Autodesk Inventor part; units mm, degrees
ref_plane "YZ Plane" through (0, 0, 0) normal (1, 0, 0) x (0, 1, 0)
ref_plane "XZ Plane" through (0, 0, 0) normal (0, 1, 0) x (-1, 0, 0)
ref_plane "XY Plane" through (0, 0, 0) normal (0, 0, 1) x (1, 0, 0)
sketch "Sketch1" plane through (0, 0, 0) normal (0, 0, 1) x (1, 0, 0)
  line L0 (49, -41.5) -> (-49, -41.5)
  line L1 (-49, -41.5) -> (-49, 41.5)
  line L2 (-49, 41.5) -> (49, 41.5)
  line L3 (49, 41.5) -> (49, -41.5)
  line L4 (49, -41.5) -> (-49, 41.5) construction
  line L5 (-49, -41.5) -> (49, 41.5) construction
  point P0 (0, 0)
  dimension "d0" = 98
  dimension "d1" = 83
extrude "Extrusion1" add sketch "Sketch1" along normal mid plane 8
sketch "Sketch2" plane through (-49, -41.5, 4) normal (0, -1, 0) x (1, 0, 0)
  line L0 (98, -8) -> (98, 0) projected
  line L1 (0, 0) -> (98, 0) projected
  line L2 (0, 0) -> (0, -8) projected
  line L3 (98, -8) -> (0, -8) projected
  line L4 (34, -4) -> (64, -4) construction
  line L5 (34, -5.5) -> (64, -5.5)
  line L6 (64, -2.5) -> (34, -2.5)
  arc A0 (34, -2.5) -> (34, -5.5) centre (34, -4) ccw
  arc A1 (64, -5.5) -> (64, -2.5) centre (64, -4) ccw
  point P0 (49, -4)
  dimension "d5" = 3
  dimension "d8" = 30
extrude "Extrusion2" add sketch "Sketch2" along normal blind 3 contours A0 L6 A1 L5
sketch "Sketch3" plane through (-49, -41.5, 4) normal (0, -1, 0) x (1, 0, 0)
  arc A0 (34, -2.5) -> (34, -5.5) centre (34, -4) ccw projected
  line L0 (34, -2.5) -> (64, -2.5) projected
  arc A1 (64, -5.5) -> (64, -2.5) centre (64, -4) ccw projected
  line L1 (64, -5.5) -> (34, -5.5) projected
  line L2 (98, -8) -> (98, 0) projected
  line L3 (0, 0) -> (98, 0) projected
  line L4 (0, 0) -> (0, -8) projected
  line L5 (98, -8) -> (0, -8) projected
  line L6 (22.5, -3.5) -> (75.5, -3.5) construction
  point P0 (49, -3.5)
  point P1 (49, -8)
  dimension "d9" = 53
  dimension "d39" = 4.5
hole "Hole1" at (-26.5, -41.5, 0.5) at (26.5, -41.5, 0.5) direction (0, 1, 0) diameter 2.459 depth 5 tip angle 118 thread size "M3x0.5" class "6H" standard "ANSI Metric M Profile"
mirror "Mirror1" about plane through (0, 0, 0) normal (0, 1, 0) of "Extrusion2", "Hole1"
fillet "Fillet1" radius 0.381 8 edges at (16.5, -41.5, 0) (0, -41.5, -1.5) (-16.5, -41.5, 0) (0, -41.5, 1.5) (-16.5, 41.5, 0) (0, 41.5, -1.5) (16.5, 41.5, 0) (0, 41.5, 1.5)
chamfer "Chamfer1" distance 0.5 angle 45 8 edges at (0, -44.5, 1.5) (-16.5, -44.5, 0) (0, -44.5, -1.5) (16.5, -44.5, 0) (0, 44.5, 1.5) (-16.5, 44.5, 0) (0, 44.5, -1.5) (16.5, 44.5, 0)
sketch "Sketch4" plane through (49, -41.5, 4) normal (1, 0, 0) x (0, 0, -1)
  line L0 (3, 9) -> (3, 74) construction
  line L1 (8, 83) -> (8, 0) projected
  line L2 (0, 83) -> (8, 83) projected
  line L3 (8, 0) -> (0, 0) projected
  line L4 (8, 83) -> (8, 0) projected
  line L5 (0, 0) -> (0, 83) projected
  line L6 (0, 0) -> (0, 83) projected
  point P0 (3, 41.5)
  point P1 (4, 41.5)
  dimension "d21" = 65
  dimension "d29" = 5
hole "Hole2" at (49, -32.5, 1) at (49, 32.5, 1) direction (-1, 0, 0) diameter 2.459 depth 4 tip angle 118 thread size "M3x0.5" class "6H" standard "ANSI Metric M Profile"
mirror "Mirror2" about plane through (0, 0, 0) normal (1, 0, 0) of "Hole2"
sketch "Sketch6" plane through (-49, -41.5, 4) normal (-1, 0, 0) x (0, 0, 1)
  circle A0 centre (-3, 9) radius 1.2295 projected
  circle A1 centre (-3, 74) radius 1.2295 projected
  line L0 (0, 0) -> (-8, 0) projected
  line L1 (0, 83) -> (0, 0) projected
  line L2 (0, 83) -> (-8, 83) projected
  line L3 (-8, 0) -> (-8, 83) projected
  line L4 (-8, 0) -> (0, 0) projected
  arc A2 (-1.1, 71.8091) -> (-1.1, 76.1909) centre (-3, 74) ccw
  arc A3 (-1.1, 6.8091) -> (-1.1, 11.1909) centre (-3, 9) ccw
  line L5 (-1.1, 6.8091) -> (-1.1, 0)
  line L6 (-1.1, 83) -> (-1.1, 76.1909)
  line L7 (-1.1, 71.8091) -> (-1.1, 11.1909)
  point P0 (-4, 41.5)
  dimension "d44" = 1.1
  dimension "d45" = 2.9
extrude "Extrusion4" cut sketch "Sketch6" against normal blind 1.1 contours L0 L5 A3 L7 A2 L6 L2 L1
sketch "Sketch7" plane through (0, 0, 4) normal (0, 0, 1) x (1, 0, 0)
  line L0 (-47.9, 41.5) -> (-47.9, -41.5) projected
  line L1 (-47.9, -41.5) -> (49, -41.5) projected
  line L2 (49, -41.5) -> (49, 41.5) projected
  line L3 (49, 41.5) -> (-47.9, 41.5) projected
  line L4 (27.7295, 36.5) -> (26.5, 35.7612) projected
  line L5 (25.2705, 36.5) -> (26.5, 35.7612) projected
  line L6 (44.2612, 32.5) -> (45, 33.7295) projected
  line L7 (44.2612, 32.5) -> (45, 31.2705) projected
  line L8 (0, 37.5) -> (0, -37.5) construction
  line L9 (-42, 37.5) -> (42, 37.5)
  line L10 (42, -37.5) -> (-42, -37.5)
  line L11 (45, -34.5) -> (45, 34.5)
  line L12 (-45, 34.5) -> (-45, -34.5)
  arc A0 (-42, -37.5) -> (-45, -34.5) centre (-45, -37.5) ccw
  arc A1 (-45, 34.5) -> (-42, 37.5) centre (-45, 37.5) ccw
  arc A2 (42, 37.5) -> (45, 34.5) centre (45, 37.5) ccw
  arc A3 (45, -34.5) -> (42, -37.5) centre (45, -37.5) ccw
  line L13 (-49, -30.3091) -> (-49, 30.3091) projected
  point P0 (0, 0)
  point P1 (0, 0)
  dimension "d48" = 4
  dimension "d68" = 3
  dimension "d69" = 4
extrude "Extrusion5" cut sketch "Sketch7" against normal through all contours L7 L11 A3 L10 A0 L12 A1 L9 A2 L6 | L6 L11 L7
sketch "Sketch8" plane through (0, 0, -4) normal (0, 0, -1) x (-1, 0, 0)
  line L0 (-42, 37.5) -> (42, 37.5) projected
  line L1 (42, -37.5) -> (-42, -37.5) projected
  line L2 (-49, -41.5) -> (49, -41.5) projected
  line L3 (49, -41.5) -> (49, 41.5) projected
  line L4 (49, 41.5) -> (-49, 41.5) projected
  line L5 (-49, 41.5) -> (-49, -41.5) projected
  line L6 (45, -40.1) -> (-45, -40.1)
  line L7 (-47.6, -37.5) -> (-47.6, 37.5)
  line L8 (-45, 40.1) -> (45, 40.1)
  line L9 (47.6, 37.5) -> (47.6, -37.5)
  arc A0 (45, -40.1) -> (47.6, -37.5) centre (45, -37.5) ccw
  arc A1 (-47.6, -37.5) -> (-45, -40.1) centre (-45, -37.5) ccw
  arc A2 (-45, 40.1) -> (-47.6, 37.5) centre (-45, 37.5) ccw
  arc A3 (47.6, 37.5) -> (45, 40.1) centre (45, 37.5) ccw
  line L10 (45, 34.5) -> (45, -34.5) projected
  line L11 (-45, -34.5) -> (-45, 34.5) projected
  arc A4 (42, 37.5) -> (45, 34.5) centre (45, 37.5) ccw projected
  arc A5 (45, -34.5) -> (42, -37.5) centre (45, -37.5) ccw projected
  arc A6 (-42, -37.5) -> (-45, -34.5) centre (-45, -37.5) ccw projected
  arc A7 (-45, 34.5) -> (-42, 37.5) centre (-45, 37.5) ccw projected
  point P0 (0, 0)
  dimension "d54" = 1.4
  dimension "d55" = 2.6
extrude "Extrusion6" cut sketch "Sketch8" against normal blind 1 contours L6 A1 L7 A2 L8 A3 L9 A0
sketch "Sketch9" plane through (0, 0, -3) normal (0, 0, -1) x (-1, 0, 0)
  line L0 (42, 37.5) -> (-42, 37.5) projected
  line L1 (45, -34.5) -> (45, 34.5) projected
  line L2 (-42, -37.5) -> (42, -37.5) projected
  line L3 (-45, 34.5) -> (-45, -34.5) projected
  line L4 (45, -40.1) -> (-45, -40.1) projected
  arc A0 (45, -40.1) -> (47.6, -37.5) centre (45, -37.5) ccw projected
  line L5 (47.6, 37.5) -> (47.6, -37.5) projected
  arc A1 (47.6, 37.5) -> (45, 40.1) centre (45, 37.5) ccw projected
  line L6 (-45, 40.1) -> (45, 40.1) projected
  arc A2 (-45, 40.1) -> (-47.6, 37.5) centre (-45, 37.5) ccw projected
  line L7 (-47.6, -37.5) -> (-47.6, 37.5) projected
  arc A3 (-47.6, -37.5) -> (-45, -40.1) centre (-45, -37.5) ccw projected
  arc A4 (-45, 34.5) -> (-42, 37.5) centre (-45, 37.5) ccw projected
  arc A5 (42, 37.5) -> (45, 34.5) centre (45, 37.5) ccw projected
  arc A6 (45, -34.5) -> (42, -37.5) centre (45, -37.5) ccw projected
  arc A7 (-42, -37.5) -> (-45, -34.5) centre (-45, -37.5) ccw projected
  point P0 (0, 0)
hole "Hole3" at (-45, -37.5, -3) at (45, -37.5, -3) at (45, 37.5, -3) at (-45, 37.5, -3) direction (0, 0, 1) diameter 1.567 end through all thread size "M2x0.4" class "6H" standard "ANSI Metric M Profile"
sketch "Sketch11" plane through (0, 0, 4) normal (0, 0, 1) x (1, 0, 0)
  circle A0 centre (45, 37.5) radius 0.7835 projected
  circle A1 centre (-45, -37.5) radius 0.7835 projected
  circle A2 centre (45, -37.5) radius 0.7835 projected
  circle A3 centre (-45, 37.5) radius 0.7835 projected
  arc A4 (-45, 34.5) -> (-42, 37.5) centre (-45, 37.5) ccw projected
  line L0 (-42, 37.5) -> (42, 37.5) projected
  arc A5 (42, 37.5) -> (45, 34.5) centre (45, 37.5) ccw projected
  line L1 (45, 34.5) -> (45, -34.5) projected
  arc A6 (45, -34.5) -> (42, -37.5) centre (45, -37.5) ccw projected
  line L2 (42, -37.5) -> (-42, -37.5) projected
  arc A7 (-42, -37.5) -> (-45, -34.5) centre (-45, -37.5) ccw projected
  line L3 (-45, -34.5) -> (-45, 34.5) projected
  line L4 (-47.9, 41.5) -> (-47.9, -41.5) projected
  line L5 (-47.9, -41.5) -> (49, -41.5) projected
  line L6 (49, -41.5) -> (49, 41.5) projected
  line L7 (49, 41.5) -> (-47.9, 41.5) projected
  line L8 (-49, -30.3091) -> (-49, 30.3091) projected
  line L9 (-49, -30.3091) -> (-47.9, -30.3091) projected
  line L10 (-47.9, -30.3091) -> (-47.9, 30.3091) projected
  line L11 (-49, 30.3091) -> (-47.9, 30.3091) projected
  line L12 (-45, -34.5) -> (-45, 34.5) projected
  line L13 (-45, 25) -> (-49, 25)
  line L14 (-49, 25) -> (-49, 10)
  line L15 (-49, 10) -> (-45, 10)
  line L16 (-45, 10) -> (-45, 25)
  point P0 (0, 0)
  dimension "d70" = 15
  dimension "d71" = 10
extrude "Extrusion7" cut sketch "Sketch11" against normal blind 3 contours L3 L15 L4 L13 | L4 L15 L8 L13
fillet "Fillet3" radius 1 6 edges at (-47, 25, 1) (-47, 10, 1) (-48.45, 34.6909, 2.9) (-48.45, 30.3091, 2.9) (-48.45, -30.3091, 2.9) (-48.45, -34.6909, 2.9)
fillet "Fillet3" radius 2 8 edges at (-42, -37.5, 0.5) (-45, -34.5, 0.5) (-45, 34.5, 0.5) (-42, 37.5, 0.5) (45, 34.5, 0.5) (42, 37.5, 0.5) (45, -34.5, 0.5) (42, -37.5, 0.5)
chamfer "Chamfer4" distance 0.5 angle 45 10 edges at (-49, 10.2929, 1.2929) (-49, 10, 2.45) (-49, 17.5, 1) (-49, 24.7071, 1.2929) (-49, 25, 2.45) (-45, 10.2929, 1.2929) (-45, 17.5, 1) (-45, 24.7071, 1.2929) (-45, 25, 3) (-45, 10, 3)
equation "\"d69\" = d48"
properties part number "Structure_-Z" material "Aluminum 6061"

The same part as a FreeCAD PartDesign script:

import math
import FreeCAD as App
import Part
import Sketcher
Q = App.Units.Quantity


def edges_at(feature, points):
    """Names of the edges that pass closest to the given points."""
    edges = feature.Shape.Edges
    near = lambda p: min(range(len(edges)), key=lambda i: edges[i].distToShape(Part.Vertex(*p))[0])
    return sorted({f"Edge{near(p) + 1}" for p in points})


def add_polygon(sketch, points):
    """Adds a closed chain of lines whose ends are joined by coincident constraints."""
    first, n = sketch.GeometryCount, len(points)
    for a, b in zip(points, points[1:] + points[:1]):
        sketch.addGeometry(Part.LineSegment(App.Vector(*a, 0), App.Vector(*b, 0)), False)
    for i in range(n):
        sketch.addConstraint(Sketcher.Constraint("Coincident", first + i, 2, first + (i + 1) % n, 1))

doc = App.newDocument("Part")
params = doc.addObject("Spreadsheet::Sheet", "Params")
for row, (alias, value) in enumerate([
    ("sketch1_width", "98 mm"),
    ("sketch1_height", "83 mm"),
    ("pad1_length", "8 mm"),
    ("sketch2_radius", "1.5 mm"),
    ("sketch2_width", "30 mm"),
    ("pad2_length", "3 mm"),
    ("hole_diameter", "2.459 mm"),
    ("hole_depth", "5 mm"),
    ("fillet_radius", "0.381 mm"),
    ("chamfer_size", "0.5 mm"),
    ("hole2_diameter", "2.459 mm"),
    ("hole2_depth", "4 mm"),
    ("sketch5_radius", "2.9 mm"),
    ("sketch5_height", "1.1 mm"),
    ("sketch5_width", "83 mm"),
    ("pocket1_length", "1.1 mm"),
    ("sketch6_radius", "3 mm"),
    ("sketch6_width", "84 mm"),
    ("sketch6_height", "69 mm"),
    ("sketch7_radius", "2.6 mm"),
    ("sketch7_radius2", "3 mm"),
    ("sketch7_width", "90 mm"),
    ("sketch7_height", "75 mm"),
    ("pocket3_length", "1 mm"),
    ("hole3_diameter", "1.567 mm"),
    ("sketch9_height", "15 mm"),
    ("sketch9_width", "4 mm"),
    ("pocket4_length", "3 mm"),
    ("fillet2_radius", "1 mm"),
    ("fillet3_radius", "2 mm"),
    ("chamfer2_size", "0.5 mm"),
], start=1):
    params.set(f"A{row}", alias)
    params.set(f"B{row}", "=" + value)
    params.setAlias(f"B{row}", alias)

body = doc.addObject("PartDesign::Body", "Body")

# Sketch on XY plane
sketch1 = body.newObject("Sketcher::SketchObject", "Sketch")
sketch1.AttachmentSupport = (doc.getObject("XY_Plane"), [""])
sketch1.MapMode = "FlatFace"
add_polygon(sketch1, [(-49, -42), (49, -42), (49, 42), (-49, 42)])  # lines 0-3
sketch1.addConstraint([
    Sketcher.Constraint("Horizontal", 0),
    Sketcher.Constraint("Vertical", 1),
    Sketcher.Constraint("Horizontal", 2),
    Sketcher.Constraint("Vertical", 3),
    Sketcher.Constraint("Symmetric", 0, 2, 2, 2, -1, 1),
    Sketcher.Constraint("DistanceX", 0, 1, 0, 2, Q("98 mm")),
    Sketcher.Constraint("DistanceY", 1, 1, 1, 2, Q("83 mm")),
])
sketch1.setExpression("Constraints[9]", "Params.sketch1_width")
sketch1.setExpression("Constraints[10]", "Params.sketch1_height")
pad1 = body.newObject("PartDesign::Pad", "Pad")
pad1.Profile = sketch1
pad1.setExpression("Length", "Params.pad1_length")
pad1.Midplane = True

# Sketch on XZ plane
sketch2 = body.newObject("Sketcher::SketchObject", "Sketch001")
sketch2.AttachmentSupport = (doc.getObject("XZ_Plane"), [""])
sketch2.MapMode = "FlatFace"
sketch2.AttachmentOffset = App.Placement(App.Vector(0, 0, 41.5), App.Rotation())
sketch2.addGeometry([
    Part.ArcOfCircle(Part.Circle(App.Vector(-15, 0, 0), App.Vector(0, 0, 1), 1.5), math.radians(90), math.radians(270)),
    Part.LineSegment(App.Vector(-15, -1.5, 0), App.Vector(15, -1.5, 0)),
    Part.ArcOfCircle(Part.Circle(App.Vector(15, 0, 0), App.Vector(0, 0, 1), 1.5), math.radians(-90), math.radians(90)),
    Part.LineSegment(App.Vector(15, 1.5, 0), App.Vector(-15, 1.5, 0)),
], False)
sketch2.addConstraint([
    Sketcher.Constraint("Tangent", 0, 2, 1, 1),
    Sketcher.Constraint("Tangent", 1, 2, 2, 1),
    Sketcher.Constraint("Tangent", 2, 2, 3, 1),
    Sketcher.Constraint("Tangent", 3, 2, 0, 1),
    Sketcher.Constraint("Horizontal", 1),
    Sketcher.Constraint("Horizontal", 3),
    Sketcher.Constraint("Symmetric", 0, 3, 2, 3, -1, 1),
    Sketcher.Constraint("Radius", 0, Q("1.5 mm")),
    Sketcher.Constraint("DistanceX", 1, 1, 1, 2, Q("30 mm")),
])
sketch2.setExpression("Constraints[7]", "Params.sketch2_radius")
sketch2.setExpression("Constraints[8]", "Params.sketch2_width")
pad2 = body.newObject("PartDesign::Pad", "Pad001")
pad2.Profile = sketch2
pad2.setExpression("Length", "Params.pad2_length")

# Sketch on XZ plane
sketch3 = body.newObject("Sketcher::SketchObject", "Sketch002")
sketch3.AttachmentSupport = (doc.getObject("XZ_Plane"), [""])
sketch3.MapMode = "FlatFace"
sketch3.AttachmentOffset = App.Placement(App.Vector(0, 0, 41.5), App.Rotation())
sketch3.addGeometry([
    Part.Circle(App.Vector(-26.5, 0.5, 0), App.Vector(0, 0, 1), 1.2),
    Part.Circle(App.Vector(26.5, 0.5, 0), App.Vector(0, 0, 1), 1.2),
], False)
sketch3.addConstraint([
    Sketcher.Constraint("Equal", 0, 1),
    Sketcher.Constraint("Symmetric", 0, 3, 1, 3, -2),
    Sketcher.Constraint("Diameter", 0, Q("2.459 mm")),
    Sketcher.Constraint("DistanceX", 0, 3, 1, 3, Q("53 mm")),
    Sketcher.Constraint("DistanceY", -1, 1, 0, 3, Q("0.5 mm")),
])
doc.recompute()
hole = body.newObject("PartDesign::Hole", "Hole")
hole.Profile = sketch3
hole.ThreadType = "None"
hole.setExpression("Diameter", "Params.hole_diameter")
hole.DepthType = "Dimension"
hole.setExpression("Depth", "Params.hole_depth")
hole.DrillPoint = "Angled"
hole.DrillPointAngle = 118
doc.recompute()

mirrored = body.newObject("PartDesign::Mirrored", "Mirrored")
mirrored.Originals = [pad2, hole]
mirrored.MirrorPlane = (doc.getObject("XZ_Plane"), [""])
body.Tip = mirrored
doc.recompute()

fillet = body.newObject("PartDesign::Fillet", "Fillet")
fillet.Base = (mirrored, edges_at(mirrored, [
    (16.5, -41.5, 0),
    (0, -41.5, -1.5),
    (-16.5, -41.5, 0),
    (0, -41.5, 1.5),
    (-16.5, 41.5, 0),
    (0, 41.5, -1.5),
    (16.5, 41.5, 0),
    (0, 41.5, 1.5),
]))
fillet.setExpression("Radius", "Params.fillet_radius")
doc.recompute()

chamfer = body.newObject("PartDesign::Chamfer", "Chamfer")
chamfer.Base = (fillet, edges_at(fillet, [
    (0, -44.5, 1.5),
    (-16.5, -44.5, 0),
    (0, -44.5, -1.5),
    (16.5, -44.5, 0),
    (0, 44.5, 1.5),
    (-16.5, 44.5, 0),
    (0, 44.5, -1.5),
    (16.5, 44.5, 0),
]))
chamfer.setExpression("Size", "Params.chamfer_size")

# Sketch on YZ plane
sketch4 = body.newObject("Sketcher::SketchObject", "Sketch003")
sketch4.AttachmentSupport = (doc.getObject("YZ_Plane"), [""])
sketch4.MapMode = "FlatFace"
sketch4.AttachmentOffset = App.Placement(App.Vector(0, 0, 49), App.Rotation())
sketch4.addGeometry([
    Part.Circle(App.Vector(-32.5, 1, 0), App.Vector(0, 0, 1), 1.2),
    Part.Circle(App.Vector(32.5, 1, 0), App.Vector(0, 0, 1), 1.2),
], False)
sketch4.addConstraint([
    Sketcher.Constraint("Equal", 0, 1),
    Sketcher.Constraint("Symmetric", 0, 3, 1, 3, -2),
    Sketcher.Constraint("Diameter", 0, Q("2.459 mm")),
    Sketcher.Constraint("DistanceY", -1, 1, 0, 3, Q("1 mm")),
    Sketcher.Constraint("DistanceX", 0, 3, 1, 3, Q("65 mm")),
])
doc.recompute()
hole2 = body.newObject("PartDesign::Hole", "Hole001")
hole2.Profile = sketch4
hole2.ThreadType = "None"
hole2.setExpression("Diameter", "Params.hole2_diameter")
hole2.DepthType = "Dimension"
hole2.setExpression("Depth", "Params.hole2_depth")
hole2.DrillPoint = "Angled"
hole2.DrillPointAngle = 118
doc.recompute()

mirrored2 = body.newObject("PartDesign::Mirrored", "Mirrored001")
mirrored2.Originals = [hole2]
mirrored2.MirrorPlane = (doc.getObject("YZ_Plane"), [""])
body.Tip = mirrored2

# Sketch on YZ plane
sketch5 = body.newObject("Sketcher::SketchObject", "Sketch004")
sketch5.AttachmentSupport = (doc.getObject("YZ_Plane"), [""])
sketch5.MapMode = "FlatFace"
sketch5.AttachmentOffset = App.Placement(App.Vector(0, 0, -49), App.Rotation())
sketch5.addGeometry([
    Part.LineSegment(App.Vector(-41.5, 2.9, 0), App.Vector(-41.5, 4, 0)),  # 0
    Part.LineSegment(App.Vector(-41.5, 4, 0), App.Vector(41.5, 4, 0)),  # 1
    Part.LineSegment(App.Vector(41.5, 4, 0), App.Vector(41.5, 2.9, 0)),  # 2
    Part.LineSegment(App.Vector(41.5, 2.9, 0), App.Vector(34.7, 2.9, 0)),  # 3
    Part.ArcOfCircle(Part.Circle(App.Vector(32.5, 1, 0), App.Vector(0, 0, 1), 2.9), math.radians(41), math.radians(139)),  # 4
    Part.LineSegment(App.Vector(30.3, 2.9, 0), App.Vector(-30.3, 2.9, 0)),  # 5
    Part.ArcOfCircle(Part.Circle(App.Vector(-32.5, 1, 0), App.Vector(0, 0, 1), 2.9), math.radians(41), math.radians(139)),  # 6
    Part.LineSegment(App.Vector(-34.7, 2.9, 0), App.Vector(-41.5, 2.9, 0)),  # 7
], False)
sketch5.addConstraint([
    Sketcher.Constraint("Coincident", 0, 2, 1, 1),
    Sketcher.Constraint("Coincident", 1, 2, 2, 1),
    Sketcher.Constraint("Coincident", 2, 2, 3, 1),
    Sketcher.Constraint("Coincident", 3, 2, 4, 1),
    Sketcher.Constraint("Coincident", 4, 2, 5, 1),
    Sketcher.Constraint("Coincident", 5, 2, 6, 1),
    Sketcher.Constraint("Coincident", 6, 2, 7, 1),
    Sketcher.Constraint("Coincident", 7, 2, 0, 1),
    Sketcher.Constraint("Vertical", 0),
    Sketcher.Constraint("Horizontal", 1),
    Sketcher.Constraint("Vertical", 2),
    Sketcher.Constraint("Horizontal", 3),
    Sketcher.Constraint("Horizontal", 5),
    Sketcher.Constraint("Horizontal", 7),
    Sketcher.Constraint("Equal", 4, 6),
    Sketcher.Constraint("Symmetric", 4, 3, 6, 3, -2),
    Sketcher.Constraint("Symmetric", 2, 2, 7, 2, -2),
    Sketcher.Constraint("Horizontal", 3, 2, 4, 2),
    Sketcher.Constraint("Radius", 4, Q("2.9 mm")),
    Sketcher.Constraint("DistanceY", 0, 1, 0, 2, Q("1.1 mm")),
    Sketcher.Constraint("DistanceY", -1, 1, 2, 2, Q("2.9 mm")),
    Sketcher.Constraint("DistanceX", 1, 1, 1, 2, Q("83 mm")),
    Sketcher.Constraint("DistanceY", -1, 1, 4, 3, Q("1 mm")),
    Sketcher.Constraint("DistanceX", 6, 3, 4, 3, Q("65 mm")),
])
sketch5.setExpression("Constraints[18]", "Params.sketch5_radius")
sketch5.setExpression("Constraints[19]", "Params.sketch5_height")
sketch5.setExpression("Constraints[21]", "Params.sketch5_width")
pocket1 = body.newObject("PartDesign::Pocket", "Pocket")
pocket1.Profile = sketch5
pocket1.setExpression("Length", "Params.pocket1_length")
pocket1.Reversed = True

# Sketch on XY plane
sketch6 = body.newObject("Sketcher::SketchObject", "Sketch005")
sketch6.AttachmentSupport = (doc.getObject("XY_Plane"), [""])
sketch6.MapMode = "FlatFace"
sketch6.AttachmentOffset = App.Placement(App.Vector(0, 0, 4), App.Rotation())
sketch6.addGeometry([
    Part.LineSegment(App.Vector(45, -34.5, 0), App.Vector(45, 34.5, 0)),  # 0
    Part.ArcOfCircle(Part.Circle(App.Vector(45, 37.5, 0), App.Vector(0, 0, 1), 3), math.radians(180), math.radians(270)),  # 1
    Part.LineSegment(App.Vector(42, 37.5, 0), App.Vector(-42, 37.5, 0)),  # 2
    Part.ArcOfCircle(Part.Circle(App.Vector(-45, 37.5, 0), App.Vector(0, 0, 1), 3), math.radians(-90), math.radians(0)),  # 3
    Part.LineSegment(App.Vector(-45, 34.5, 0), App.Vector(-45, -34.5, 0)),  # 4
    Part.ArcOfCircle(Part.Circle(App.Vector(-45, -37.5, 0), App.Vector(0, 0, 1), 3), math.radians(0), math.radians(90)),  # 5
    Part.LineSegment(App.Vector(-42, -37.5, 0), App.Vector(42, -37.5, 0)),  # 6
    Part.ArcOfCircle(Part.Circle(App.Vector(45, -37.5, 0), App.Vector(0, 0, 1), 3), math.radians(90), math.radians(180)),  # 7
], False)
sketch6.addConstraint([
    Sketcher.Constraint("Coincident", 0, 2, 1, 2),
    Sketcher.Constraint("Coincident", 1, 1, 2, 1),
    Sketcher.Constraint("Coincident", 2, 2, 3, 2),
    Sketcher.Constraint("Coincident", 3, 1, 4, 1),
    Sketcher.Constraint("Coincident", 4, 2, 5, 2),
    Sketcher.Constraint("Coincident", 5, 1, 6, 1),
    Sketcher.Constraint("Coincident", 6, 2, 7, 2),
    Sketcher.Constraint("Coincident", 7, 1, 0, 1),
    Sketcher.Constraint("Vertical", 0),
    Sketcher.Constraint("Horizontal", 2),
    Sketcher.Constraint("Vertical", 4),
    Sketcher.Constraint("Horizontal", 6),
    Sketcher.Constraint("Equal", 1, 3),
    Sketcher.Constraint("Equal", 3, 5),
    Sketcher.Constraint("Equal", 5, 7),
    Sketcher.Constraint("Symmetric", 1, 3, 5, 3, -1, 1),
    Sketcher.Constraint("Symmetric", 3, 3, 7, 3, -1, 1),
    Sketcher.Constraint("Symmetric", 1, 3, 3, 3, -2),
    Sketcher.Constraint("Horizontal", 3, 3, 1, 1),
    Sketcher.Constraint("Horizontal", 7, 3, 5, 1),
    Sketcher.Constraint("Vertical", 7, 3, 0, 2),
    Sketcher.Constraint("Vertical", 5, 3, 3, 1),
    Sketcher.Constraint("Radius", 1, Q("3 mm")),
    Sketcher.Constraint("DistanceX", 2, 2, 2, 1, Q("84 mm")),
    Sketcher.Constraint("DistanceY", 0, 1, 0, 2, Q("69 mm")),
])
sketch6.setExpression("Constraints[22]", "Params.sketch6_radius")
sketch6.setExpression("Constraints[23]", "Params.sketch6_width")
sketch6.setExpression("Constraints[24]", "Params.sketch6_height")
pocket2 = body.newObject("PartDesign::Pocket", "Pocket001")
pocket2.Profile = sketch6
pocket2.Type = "ThroughAll"

# Sketch on XY plane
sketch7 = body.newObject("Sketcher::SketchObject", "Sketch006")
sketch7.AttachmentSupport = (doc.getObject("XY_Plane"), [""])
sketch7.MapMode = "FlatFace"
sketch7.AttachmentOffset = App.Placement(App.Vector(0, 0, -4), App.Rotation())
sketch7.addGeometry([
    Part.LineSegment(App.Vector(45, -40.1, 0), App.Vector(-45, -40.1, 0)),  # 0
    Part.ArcOfCircle(Part.Circle(App.Vector(-45, -37.5, 0), App.Vector(0, 0, 1), 2.6), math.radians(180), math.radians(270)),  # 1
    Part.LineSegment(App.Vector(-47.6, -37.5, 0), App.Vector(-47.6, 37.5, 0)),  # 2
    Part.ArcOfCircle(Part.Circle(App.Vector(-45, 37.5, 0), App.Vector(0, 0, 1), 2.6), math.radians(90), math.radians(180)),  # 3
    Part.LineSegment(App.Vector(-45, 40.1, 0), App.Vector(45, 40.1, 0)),  # 4
    Part.ArcOfCircle(Part.Circle(App.Vector(45, 37.5, 0), App.Vector(0, 0, 1), 2.6), math.radians(0), math.radians(90)),  # 5
    Part.LineSegment(App.Vector(47.6, 37.5, 0), App.Vector(47.6, -37.5, 0)),  # 6
    Part.ArcOfCircle(Part.Circle(App.Vector(45, -37.5, 0), App.Vector(0, 0, 1), 2.6), math.radians(-90), math.radians(0)),  # 7
    Part.ArcOfCircle(Part.Circle(App.Vector(45, 37.5, 0), App.Vector(0, 0, 1), 3), math.radians(180), math.radians(270)),  # 8
    Part.LineSegment(App.Vector(42, 37.5, 0), App.Vector(-42, 37.5, 0)),  # 9
    Part.ArcOfCircle(Part.Circle(App.Vector(-45, 37.5, 0), App.Vector(0, 0, 1), 3), math.radians(-90), math.radians(0)),  # 10
    Part.LineSegment(App.Vector(-45, 34.5, 0), App.Vector(-45, -34.5, 0)),  # 11
    Part.ArcOfCircle(Part.Circle(App.Vector(-45, -37.5, 0), App.Vector(0, 0, 1), 3), math.radians(0), math.radians(90)),  # 12
    Part.LineSegment(App.Vector(-42, -37.5, 0), App.Vector(42, -37.5, 0)),  # 13
    Part.ArcOfCircle(Part.Circle(App.Vector(45, -37.5, 0), App.Vector(0, 0, 1), 3), math.radians(90), math.radians(180)),  # 14
    Part.LineSegment(App.Vector(45, -34.5, 0), App.Vector(45, 34.5, 0)),  # 15
], False)
sketch7.addConstraint([
    Sketcher.Constraint("Tangent", 0, 2, 1, 2),
    Sketcher.Constraint("Tangent", 1, 1, 2, 1),
    Sketcher.Constraint("Tangent", 2, 2, 3, 2),
    Sketcher.Constraint("Tangent", 3, 1, 4, 1),
    Sketcher.Constraint("Tangent", 4, 2, 5, 2),
    Sketcher.Constraint("Tangent", 5, 1, 6, 1),
    Sketcher.Constraint("Tangent", 6, 2, 7, 2),
    Sketcher.Constraint("Tangent", 7, 1, 0, 1),
    Sketcher.Constraint("Coincident", 8, 1, 9, 1),
    Sketcher.Constraint("Coincident", 9, 2, 10, 2),
    Sketcher.Constraint("Coincident", 10, 1, 11, 1),
    Sketcher.Constraint("Coincident", 11, 2, 12, 2),
    Sketcher.Constraint("Coincident", 12, 1, 13, 1),
    Sketcher.Constraint("Coincident", 13, 2, 14, 2),
    Sketcher.Constraint("Coincident", 14, 1, 15, 1),
    Sketcher.Constraint("Coincident", 15, 2, 8, 2),
    Sketcher.Constraint("Horizontal", 0),
    Sketcher.Constraint("Vertical", 2),
    Sketcher.Constraint("Horizontal", 4),
    Sketcher.Constraint("Vertical", 6),
    Sketcher.Constraint("Horizontal", 9),
    Sketcher.Constraint("Vertical", 11),
    Sketcher.Constraint("Horizontal", 13),
    Sketcher.Constraint("Vertical", 15),
    Sketcher.Constraint("Coincident", 8, 3, 5, 3),
    Sketcher.Constraint("Coincident", 10, 3, 3, 3),
    Sketcher.Constraint("Coincident", 12, 3, 1, 3),
    Sketcher.Constraint("Coincident", 14, 3, 7, 3),
    Sketcher.Constraint("Equal", 1, 3),
    Sketcher.Constraint("Equal", 3, 5),
    Sketcher.Constraint("Equal", 5, 7),
    Sketcher.Constraint("Equal", 8, 10),
    Sketcher.Constraint("Equal", 10, 12),
    Sketcher.Constraint("Equal", 12, 14),
    Sketcher.Constraint("Symmetric", 1, 3, 5, 3, -1, 1),
    Sketcher.Constraint("Horizontal", 5, 1, 8, 1),
    Sketcher.Constraint("Horizontal", 6, 2, 12, 1),
    Sketcher.Constraint("Vertical", 3, 1, 10, 1),
    Sketcher.Constraint("Vertical", 7, 1, 14, 1),
    Sketcher.Constraint("Radius", 1, Q("2.6 mm")),
    Sketcher.Constraint("Radius", 8, Q("3 mm")),
    Sketcher.Constraint("DistanceX", 0, 2, 0, 1, Q("90 mm")),
    Sketcher.Constraint("DistanceY", 2, 1, 2, 2, Q("75 mm")),
])
sketch7.setExpression("Constraints[39]", "Params.sketch7_radius")
sketch7.setExpression("Constraints[40]", "Params.sketch7_radius2")
sketch7.setExpression("Constraints[41]", "Params.sketch7_width")
sketch7.setExpression("Constraints[42]", "Params.sketch7_height")
pocket3 = body.newObject("PartDesign::Pocket", "Pocket002")
pocket3.Profile = sketch7
pocket3.setExpression("Length", "Params.pocket3_length")
pocket3.Reversed = True

# Sketch on XY plane
sketch8 = body.newObject("Sketcher::SketchObject", "Sketch007")
sketch8.AttachmentSupport = (doc.getObject("XY_Plane"), [""])
sketch8.MapMode = "FlatFace"
sketch8.AttachmentOffset = App.Placement(App.Vector(0, 0, -3), App.Rotation())
sketch8.addGeometry([
    Part.Circle(App.Vector(-45, -37.5, 0), App.Vector(0, 0, 1), 0.8),
    Part.Circle(App.Vector(45, -37.5, 0), App.Vector(0, 0, 1), 0.8),
    Part.Circle(App.Vector(45, 37.5, 0), App.Vector(0, 0, 1), 0.8),
    Part.Circle(App.Vector(-45, 37.5, 0), App.Vector(0, 0, 1), 0.8),
], False)
sketch8.addConstraint([
    Sketcher.Constraint("Equal", 0, 1),
    Sketcher.Constraint("Equal", 1, 2),
    Sketcher.Constraint("Equal", 2, 3),
    Sketcher.Constraint("Symmetric", 0, 3, 2, 3, -1, 1),
    Sketcher.Constraint("Symmetric", 1, 3, 3, 3, -1, 1),
    Sketcher.Constraint("Symmetric", 0, 3, 1, 3, -2),
    Sketcher.Constraint("Diameter", 0, Q("1.567 mm")),
    Sketcher.Constraint("DistanceX", 0, 3, -1, 1, Q("45 mm")),
    Sketcher.Constraint("DistanceY", 1, 3, 2, 3, Q("75 mm")),
])
doc.recompute()
hole3 = body.newObject("PartDesign::Hole", "Hole002")
hole3.Profile = sketch8
hole3.ThreadType = "None"
hole3.setExpression("Diameter", "Params.hole3_diameter")
hole3.DepthType = "ThroughAll"
hole3.Reversed = True

# Sketch on XY plane
sketch9 = body.newObject("Sketcher::SketchObject", "Sketch008")
sketch9.AttachmentSupport = (doc.getObject("XY_Plane"), [""])
sketch9.MapMode = "FlatFace"
sketch9.AttachmentOffset = App.Placement(App.Vector(0, 0, 4), App.Rotation())
add_polygon(sketch9, [(-45, 10), (-45, 25), (-49, 25), (-49, 10)])  # lines 0-3
sketch9.addConstraint([
    Sketcher.Constraint("Vertical", 0),
    Sketcher.Constraint("Horizontal", 1),
    Sketcher.Constraint("Vertical", 2),
    Sketcher.Constraint("Horizontal", 3),
    Sketcher.Constraint("DistanceY", 0, 1, 0, 2, Q("15 mm")),
    Sketcher.Constraint("DistanceY", -1, 1, 2, 2, Q("10 mm")),
    Sketcher.Constraint("DistanceX", 1, 2, 1, 1, Q("4 mm")),
    Sketcher.Constraint("DistanceX", 0, 2, -1, 1, Q("45 mm")),
])
sketch9.setExpression("Constraints[8]", "Params.sketch9_height")
sketch9.setExpression("Constraints[10]", "Params.sketch9_width")
pocket4 = body.newObject("PartDesign::Pocket", "Pocket003")
pocket4.Profile = sketch9
pocket4.setExpression("Length", "Params.pocket4_length")
doc.recompute()

fillet2 = body.newObject("PartDesign::Fillet", "Fillet001")
fillet2.Base = (pocket4, edges_at(pocket4, [
    (-47, 25, 1),
    (-47, 10, 1),
    (-48.45, 34.691, 2.9),
    (-48.45, 30.309, 2.9),
    (-48.45, -30.309, 2.9),
    (-48.45, -34.691, 2.9),
]))
fillet2.setExpression("Radius", "Params.fillet2_radius")
doc.recompute()

fillet3 = body.newObject("PartDesign::Fillet", "Fillet002")
fillet3.Base = (fillet2, edges_at(fillet2, [
    (-42, -37.5, 0.5),
    (-45, -34.5, 0.5),
    (-45, 34.5, 0.5),
    (-42, 37.5, 0.5),
    (45, 34.5, 0.5),
    (42, 37.5, 0.5),
    (45, -34.5, 0.5),
    (42, -37.5, 0.5),
]))
fillet3.setExpression("Radius", "Params.fillet3_radius")
doc.recompute()

chamfer2 = body.newObject("PartDesign::Chamfer", "Chamfer001")
chamfer2.Base = (fillet3, edges_at(fillet3, [
    (-49, 10.293, 1.293),
    (-49, 10, 2.45),
    (-49, 17.5, 1),
    (-49, 24.707, 1.293),
    (-49, 25, 2.45),
    (-45, 10.293, 1.293),
    (-45, 17.5, 1),
    (-45, 24.707, 1.293),
    (-45, 25, 3),
    (-45, 10, 3),
]))
chamfer2.setExpression("Size", "Params.chamfer2_size")

doc.recompute()
